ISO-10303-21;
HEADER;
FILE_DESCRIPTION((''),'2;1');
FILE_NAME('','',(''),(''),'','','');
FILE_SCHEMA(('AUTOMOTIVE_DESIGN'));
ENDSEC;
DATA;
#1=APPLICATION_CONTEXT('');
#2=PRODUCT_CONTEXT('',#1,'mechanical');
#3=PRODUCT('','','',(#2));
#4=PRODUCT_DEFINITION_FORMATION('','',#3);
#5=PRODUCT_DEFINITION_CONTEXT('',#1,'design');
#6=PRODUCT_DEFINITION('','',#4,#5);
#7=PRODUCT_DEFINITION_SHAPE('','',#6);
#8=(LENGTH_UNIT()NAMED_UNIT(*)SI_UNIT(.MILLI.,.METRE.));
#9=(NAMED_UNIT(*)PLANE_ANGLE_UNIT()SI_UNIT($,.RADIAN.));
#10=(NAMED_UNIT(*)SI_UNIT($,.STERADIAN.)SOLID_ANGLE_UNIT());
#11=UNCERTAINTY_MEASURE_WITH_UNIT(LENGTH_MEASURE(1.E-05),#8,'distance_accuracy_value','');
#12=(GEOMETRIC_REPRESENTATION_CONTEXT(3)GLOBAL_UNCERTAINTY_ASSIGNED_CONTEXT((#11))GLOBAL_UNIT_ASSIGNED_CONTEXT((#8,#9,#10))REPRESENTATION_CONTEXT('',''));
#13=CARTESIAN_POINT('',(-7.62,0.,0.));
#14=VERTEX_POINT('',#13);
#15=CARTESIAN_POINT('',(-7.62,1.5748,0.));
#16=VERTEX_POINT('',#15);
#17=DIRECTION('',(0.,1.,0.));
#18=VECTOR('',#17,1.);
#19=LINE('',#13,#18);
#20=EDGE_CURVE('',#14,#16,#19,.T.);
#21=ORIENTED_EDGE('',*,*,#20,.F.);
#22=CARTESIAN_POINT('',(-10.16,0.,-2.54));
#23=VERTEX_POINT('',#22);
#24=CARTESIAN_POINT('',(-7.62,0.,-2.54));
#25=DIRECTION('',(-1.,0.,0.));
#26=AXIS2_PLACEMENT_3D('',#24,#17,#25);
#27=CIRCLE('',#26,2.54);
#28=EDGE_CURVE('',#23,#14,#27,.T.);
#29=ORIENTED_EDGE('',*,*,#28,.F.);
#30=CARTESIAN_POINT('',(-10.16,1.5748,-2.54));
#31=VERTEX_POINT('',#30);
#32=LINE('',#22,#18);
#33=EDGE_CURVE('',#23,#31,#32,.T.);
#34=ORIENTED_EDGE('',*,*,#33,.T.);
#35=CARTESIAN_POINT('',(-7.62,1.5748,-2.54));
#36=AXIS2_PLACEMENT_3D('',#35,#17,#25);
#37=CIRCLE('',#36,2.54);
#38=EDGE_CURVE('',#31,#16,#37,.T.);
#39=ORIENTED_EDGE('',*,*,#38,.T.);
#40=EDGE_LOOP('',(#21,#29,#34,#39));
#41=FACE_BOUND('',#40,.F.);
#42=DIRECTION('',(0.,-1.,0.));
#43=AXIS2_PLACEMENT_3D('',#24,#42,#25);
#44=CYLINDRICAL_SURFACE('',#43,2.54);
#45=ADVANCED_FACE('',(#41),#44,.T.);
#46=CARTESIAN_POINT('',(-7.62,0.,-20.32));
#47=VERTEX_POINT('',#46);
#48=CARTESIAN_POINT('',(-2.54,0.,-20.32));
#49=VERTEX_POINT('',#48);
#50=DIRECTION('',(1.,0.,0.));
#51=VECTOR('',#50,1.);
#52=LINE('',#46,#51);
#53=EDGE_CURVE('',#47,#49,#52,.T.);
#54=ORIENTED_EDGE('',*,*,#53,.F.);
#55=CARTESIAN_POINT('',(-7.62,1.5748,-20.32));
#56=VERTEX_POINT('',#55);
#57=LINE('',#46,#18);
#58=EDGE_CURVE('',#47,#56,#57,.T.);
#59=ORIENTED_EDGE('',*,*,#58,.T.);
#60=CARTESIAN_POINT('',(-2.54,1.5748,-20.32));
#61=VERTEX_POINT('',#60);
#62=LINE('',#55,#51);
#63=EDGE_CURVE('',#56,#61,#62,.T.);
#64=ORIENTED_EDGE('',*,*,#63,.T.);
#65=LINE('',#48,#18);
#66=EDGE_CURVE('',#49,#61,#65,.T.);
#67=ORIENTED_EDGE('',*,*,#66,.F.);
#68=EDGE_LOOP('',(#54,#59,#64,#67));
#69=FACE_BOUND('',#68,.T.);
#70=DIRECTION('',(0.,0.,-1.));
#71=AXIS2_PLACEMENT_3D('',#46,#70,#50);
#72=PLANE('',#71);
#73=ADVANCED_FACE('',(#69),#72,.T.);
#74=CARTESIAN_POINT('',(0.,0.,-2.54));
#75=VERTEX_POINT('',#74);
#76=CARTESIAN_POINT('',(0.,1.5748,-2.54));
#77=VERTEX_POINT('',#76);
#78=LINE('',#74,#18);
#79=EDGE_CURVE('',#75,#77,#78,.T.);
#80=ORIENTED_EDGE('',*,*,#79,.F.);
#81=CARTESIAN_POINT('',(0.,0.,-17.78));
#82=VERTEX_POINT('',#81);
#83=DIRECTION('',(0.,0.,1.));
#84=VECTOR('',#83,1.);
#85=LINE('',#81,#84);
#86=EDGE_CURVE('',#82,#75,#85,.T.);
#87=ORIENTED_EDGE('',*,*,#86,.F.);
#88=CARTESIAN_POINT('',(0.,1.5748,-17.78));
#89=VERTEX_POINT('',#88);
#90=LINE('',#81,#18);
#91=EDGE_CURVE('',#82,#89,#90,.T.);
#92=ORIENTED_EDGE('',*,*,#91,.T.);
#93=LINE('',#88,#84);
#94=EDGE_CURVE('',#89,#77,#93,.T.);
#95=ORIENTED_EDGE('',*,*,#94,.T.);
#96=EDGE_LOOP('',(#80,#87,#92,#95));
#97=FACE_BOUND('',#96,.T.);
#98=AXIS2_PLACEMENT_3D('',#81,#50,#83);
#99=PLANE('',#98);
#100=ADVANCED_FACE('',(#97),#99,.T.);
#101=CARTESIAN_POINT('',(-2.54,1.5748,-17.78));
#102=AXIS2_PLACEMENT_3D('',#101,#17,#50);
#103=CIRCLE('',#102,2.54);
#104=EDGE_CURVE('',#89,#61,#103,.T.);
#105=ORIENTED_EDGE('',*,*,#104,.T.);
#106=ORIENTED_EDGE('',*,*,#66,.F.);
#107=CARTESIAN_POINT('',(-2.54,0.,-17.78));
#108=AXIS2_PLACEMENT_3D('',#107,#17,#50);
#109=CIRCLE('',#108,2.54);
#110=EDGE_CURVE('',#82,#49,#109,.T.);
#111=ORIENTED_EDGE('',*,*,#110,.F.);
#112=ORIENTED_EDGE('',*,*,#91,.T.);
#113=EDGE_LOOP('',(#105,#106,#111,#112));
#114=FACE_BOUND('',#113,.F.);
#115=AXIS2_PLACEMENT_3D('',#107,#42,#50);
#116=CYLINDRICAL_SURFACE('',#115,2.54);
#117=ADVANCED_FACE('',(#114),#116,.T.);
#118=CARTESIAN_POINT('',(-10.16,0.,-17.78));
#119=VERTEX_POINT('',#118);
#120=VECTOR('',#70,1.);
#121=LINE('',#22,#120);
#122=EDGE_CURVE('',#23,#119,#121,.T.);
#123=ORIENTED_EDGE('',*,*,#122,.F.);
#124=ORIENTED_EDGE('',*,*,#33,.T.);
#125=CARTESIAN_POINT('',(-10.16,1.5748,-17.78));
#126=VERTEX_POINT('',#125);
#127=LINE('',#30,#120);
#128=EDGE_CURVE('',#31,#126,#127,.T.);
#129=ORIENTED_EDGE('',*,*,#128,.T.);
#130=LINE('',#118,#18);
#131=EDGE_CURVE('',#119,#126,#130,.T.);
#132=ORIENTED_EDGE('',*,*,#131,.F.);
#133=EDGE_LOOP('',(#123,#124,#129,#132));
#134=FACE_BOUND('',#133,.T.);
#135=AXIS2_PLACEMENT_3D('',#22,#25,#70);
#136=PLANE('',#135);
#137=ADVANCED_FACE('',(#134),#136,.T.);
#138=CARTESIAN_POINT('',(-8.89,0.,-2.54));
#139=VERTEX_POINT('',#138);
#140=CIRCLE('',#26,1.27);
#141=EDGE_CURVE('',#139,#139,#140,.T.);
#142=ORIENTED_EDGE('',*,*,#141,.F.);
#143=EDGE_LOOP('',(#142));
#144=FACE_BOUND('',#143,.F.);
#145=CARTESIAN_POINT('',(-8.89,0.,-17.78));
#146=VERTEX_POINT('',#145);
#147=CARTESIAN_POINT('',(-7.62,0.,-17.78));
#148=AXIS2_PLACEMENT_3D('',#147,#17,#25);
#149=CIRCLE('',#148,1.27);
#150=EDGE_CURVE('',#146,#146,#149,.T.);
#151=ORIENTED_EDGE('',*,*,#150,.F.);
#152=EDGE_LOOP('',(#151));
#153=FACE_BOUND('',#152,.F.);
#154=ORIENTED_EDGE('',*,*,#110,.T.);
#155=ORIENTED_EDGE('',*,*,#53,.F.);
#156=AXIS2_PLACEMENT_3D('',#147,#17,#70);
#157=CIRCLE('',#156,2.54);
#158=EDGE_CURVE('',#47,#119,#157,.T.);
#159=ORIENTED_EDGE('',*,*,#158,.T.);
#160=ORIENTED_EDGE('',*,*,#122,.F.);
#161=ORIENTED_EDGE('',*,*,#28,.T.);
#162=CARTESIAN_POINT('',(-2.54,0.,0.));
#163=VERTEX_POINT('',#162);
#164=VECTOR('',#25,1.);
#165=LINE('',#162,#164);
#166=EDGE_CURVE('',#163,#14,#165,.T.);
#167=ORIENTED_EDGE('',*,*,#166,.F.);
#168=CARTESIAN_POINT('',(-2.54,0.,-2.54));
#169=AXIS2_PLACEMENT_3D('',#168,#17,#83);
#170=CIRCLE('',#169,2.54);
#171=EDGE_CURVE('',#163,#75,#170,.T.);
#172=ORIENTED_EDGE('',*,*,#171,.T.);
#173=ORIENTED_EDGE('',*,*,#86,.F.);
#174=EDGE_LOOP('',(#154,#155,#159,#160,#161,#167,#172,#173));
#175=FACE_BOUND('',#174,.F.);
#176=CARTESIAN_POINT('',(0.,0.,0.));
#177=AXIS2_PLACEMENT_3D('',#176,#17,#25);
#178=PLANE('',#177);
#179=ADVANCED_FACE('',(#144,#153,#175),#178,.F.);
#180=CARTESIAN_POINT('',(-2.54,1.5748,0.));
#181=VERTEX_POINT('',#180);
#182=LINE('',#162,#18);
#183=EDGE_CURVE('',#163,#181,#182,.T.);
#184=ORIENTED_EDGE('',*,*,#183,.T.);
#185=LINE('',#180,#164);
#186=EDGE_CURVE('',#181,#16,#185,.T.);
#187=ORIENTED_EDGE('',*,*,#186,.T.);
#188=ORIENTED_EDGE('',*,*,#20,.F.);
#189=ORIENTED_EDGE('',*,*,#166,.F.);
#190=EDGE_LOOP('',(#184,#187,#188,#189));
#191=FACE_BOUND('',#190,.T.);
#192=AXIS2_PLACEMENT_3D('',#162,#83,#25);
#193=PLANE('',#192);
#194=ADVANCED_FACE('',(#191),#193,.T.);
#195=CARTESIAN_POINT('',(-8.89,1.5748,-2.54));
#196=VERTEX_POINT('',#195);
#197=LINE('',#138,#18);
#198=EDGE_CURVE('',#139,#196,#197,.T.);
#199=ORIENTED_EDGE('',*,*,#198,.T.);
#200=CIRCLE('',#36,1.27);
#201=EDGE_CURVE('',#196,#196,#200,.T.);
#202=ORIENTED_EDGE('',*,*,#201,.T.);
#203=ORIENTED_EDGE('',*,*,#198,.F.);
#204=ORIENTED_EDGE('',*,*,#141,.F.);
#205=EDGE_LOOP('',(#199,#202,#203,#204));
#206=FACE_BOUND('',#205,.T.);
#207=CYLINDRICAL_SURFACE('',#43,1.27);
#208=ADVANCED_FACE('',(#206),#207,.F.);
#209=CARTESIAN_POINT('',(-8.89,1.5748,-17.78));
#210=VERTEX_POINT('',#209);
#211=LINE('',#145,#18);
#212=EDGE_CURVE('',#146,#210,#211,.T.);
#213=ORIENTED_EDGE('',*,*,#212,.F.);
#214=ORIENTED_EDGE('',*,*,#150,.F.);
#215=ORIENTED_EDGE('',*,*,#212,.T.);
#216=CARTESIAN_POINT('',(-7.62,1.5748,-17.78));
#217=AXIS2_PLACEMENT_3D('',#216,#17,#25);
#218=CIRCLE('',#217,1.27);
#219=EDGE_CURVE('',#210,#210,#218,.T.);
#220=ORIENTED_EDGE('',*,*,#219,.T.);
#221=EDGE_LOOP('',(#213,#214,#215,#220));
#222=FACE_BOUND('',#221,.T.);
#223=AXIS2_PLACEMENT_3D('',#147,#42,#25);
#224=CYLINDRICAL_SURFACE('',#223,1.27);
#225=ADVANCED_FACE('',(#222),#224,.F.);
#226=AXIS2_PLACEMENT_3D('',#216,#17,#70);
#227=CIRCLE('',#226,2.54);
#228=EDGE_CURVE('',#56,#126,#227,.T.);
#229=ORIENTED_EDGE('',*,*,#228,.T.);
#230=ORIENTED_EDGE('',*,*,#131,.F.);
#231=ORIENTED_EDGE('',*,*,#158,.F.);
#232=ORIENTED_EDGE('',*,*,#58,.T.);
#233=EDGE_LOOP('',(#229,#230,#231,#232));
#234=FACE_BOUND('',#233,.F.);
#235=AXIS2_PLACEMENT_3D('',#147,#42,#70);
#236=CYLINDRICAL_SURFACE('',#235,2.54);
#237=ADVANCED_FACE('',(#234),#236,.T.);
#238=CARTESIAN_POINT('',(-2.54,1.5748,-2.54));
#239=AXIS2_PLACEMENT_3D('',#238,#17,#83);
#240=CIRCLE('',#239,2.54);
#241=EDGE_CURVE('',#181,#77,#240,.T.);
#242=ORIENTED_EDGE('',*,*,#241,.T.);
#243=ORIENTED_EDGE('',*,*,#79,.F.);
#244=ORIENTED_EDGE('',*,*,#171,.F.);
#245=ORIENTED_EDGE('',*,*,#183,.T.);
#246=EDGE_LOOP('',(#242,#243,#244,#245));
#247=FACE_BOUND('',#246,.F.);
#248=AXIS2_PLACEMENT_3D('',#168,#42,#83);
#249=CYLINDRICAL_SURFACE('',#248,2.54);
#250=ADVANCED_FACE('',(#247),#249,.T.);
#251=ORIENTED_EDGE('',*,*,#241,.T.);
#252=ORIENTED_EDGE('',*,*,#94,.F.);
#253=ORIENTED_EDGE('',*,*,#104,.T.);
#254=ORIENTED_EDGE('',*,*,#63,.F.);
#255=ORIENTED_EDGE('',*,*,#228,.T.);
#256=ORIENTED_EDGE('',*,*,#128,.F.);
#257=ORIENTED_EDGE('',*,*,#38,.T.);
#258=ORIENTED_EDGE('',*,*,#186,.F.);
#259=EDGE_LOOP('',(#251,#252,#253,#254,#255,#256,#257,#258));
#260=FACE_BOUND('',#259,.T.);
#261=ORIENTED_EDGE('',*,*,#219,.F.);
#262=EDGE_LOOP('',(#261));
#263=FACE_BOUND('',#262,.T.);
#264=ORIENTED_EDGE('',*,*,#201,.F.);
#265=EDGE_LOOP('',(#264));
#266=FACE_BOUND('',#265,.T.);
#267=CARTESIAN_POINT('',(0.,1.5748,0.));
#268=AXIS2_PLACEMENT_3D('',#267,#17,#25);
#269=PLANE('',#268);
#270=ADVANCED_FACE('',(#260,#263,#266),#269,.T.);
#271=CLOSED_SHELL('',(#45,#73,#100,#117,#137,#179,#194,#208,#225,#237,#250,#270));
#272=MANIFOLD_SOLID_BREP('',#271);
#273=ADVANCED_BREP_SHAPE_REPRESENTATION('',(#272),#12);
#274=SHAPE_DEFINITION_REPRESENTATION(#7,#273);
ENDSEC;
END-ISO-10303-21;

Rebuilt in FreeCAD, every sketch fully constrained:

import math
import FreeCAD as App
import Part
import Sketcher

V = App.Vector
Q = App.Units.Quantity

doc = App.newDocument("Part")
body = doc.addObject("PartDesign::Body", "Body")

sketch1 = doc.addObject("Sketcher::SketchObject", "Sketch")
body.addObject(sketch1)
sketch1.AttachmentSupport = (doc.XZ_Plane, [""])
sketch1.MapMode = "FlatFace"
sketch1.addGeometry([
    Part.LineSegment(V(-7.6, 0, 0), V(-2.5, 0, 0)),
    Part.ArcOfCircle(Part.Circle(V(-2.5, -2.5, 0), V(0, 0, 1), 2.5), math.radians(0), math.radians(90)),
    Part.LineSegment(V(0, -2.5, 0), V(0, -17.8, 0)),
    Part.ArcOfCircle(Part.Circle(V(-2.5, -17.8, 0), V(0, 0, 1), 2.5), math.radians(-90), math.radians(0)),
    Part.LineSegment(V(-2.5, -20.3, 0), V(-7.6, -20.3, 0)),
    Part.ArcOfCircle(Part.Circle(V(-7.6, -17.8, 0), V(0, 0, 1), 2.5), math.radians(180), math.radians(270)),
    Part.LineSegment(V(-10.2, -17.8, 0), V(-10.2, -2.5, 0)),
    Part.ArcOfCircle(Part.Circle(V(-7.6, -2.5, 0), V(0, 0, 1), 2.5), math.radians(90), math.radians(180)),
    Part.Circle(V(-7.6, -17.8, 0), V(0, 0, 1), 1.3),
    Part.Circle(V(-7.6, -2.5, 0), V(0, 0, 1), 1.3),
], False)
sketch1.addConstraint([
    Sketcher.Constraint("Tangent", 0, 2, 1, 2),
    Sketcher.Constraint("Tangent", 1, 1, 2, 1),
    Sketcher.Constraint("Tangent", 2, 2, 3, 2),
    Sketcher.Constraint("Tangent", 3, 1, 4, 1),
    Sketcher.Constraint("Tangent", 4, 2, 5, 2),
    Sketcher.Constraint("Tangent", 5, 1, 6, 1),
    Sketcher.Constraint("Tangent", 6, 2, 7, 2),
    Sketcher.Constraint("Tangent", 7, 1, 0, 1),
    Sketcher.Constraint("Horizontal", 0),
    Sketcher.Constraint("Vertical", 2),
    Sketcher.Constraint("Horizontal", 4),
    Sketcher.Constraint("Vertical", 6),
    Sketcher.Constraint("Coincident", 8, 3, 5, 3),
    Sketcher.Constraint("Coincident", 9, 3, 7, 3),
    Sketcher.Constraint("Equal", 1, 3),
    Sketcher.Constraint("Equal", 3, 5),
    Sketcher.Constraint("Equal", 5, 7),
    Sketcher.Constraint("Equal", 8, 9),
    Sketcher.Constraint("PointOnObject", 0, 2, -1),
    Sketcher.Constraint("PointOnObject", 1, 1, -2),
    Sketcher.Constraint("Diameter", 8, Q("0.1 in")),
    Sketcher.Constraint("Radius", 1, Q("0.1 in")),
    Sketcher.Constraint("DistanceY", 3, 1, -1, 1, Q("0.8 in")),
    Sketcher.Constraint("DistanceX", 5, 1, -1, 1, Q("0.4 in")),
])
pad1 = doc.addObject("PartDesign::Pad", "Pad")
body.addObject(pad1)
pad1.Profile = sketch1
pad1.Length = Q("0.062 in")
pad1.Reversed = True

doc.recompute()
